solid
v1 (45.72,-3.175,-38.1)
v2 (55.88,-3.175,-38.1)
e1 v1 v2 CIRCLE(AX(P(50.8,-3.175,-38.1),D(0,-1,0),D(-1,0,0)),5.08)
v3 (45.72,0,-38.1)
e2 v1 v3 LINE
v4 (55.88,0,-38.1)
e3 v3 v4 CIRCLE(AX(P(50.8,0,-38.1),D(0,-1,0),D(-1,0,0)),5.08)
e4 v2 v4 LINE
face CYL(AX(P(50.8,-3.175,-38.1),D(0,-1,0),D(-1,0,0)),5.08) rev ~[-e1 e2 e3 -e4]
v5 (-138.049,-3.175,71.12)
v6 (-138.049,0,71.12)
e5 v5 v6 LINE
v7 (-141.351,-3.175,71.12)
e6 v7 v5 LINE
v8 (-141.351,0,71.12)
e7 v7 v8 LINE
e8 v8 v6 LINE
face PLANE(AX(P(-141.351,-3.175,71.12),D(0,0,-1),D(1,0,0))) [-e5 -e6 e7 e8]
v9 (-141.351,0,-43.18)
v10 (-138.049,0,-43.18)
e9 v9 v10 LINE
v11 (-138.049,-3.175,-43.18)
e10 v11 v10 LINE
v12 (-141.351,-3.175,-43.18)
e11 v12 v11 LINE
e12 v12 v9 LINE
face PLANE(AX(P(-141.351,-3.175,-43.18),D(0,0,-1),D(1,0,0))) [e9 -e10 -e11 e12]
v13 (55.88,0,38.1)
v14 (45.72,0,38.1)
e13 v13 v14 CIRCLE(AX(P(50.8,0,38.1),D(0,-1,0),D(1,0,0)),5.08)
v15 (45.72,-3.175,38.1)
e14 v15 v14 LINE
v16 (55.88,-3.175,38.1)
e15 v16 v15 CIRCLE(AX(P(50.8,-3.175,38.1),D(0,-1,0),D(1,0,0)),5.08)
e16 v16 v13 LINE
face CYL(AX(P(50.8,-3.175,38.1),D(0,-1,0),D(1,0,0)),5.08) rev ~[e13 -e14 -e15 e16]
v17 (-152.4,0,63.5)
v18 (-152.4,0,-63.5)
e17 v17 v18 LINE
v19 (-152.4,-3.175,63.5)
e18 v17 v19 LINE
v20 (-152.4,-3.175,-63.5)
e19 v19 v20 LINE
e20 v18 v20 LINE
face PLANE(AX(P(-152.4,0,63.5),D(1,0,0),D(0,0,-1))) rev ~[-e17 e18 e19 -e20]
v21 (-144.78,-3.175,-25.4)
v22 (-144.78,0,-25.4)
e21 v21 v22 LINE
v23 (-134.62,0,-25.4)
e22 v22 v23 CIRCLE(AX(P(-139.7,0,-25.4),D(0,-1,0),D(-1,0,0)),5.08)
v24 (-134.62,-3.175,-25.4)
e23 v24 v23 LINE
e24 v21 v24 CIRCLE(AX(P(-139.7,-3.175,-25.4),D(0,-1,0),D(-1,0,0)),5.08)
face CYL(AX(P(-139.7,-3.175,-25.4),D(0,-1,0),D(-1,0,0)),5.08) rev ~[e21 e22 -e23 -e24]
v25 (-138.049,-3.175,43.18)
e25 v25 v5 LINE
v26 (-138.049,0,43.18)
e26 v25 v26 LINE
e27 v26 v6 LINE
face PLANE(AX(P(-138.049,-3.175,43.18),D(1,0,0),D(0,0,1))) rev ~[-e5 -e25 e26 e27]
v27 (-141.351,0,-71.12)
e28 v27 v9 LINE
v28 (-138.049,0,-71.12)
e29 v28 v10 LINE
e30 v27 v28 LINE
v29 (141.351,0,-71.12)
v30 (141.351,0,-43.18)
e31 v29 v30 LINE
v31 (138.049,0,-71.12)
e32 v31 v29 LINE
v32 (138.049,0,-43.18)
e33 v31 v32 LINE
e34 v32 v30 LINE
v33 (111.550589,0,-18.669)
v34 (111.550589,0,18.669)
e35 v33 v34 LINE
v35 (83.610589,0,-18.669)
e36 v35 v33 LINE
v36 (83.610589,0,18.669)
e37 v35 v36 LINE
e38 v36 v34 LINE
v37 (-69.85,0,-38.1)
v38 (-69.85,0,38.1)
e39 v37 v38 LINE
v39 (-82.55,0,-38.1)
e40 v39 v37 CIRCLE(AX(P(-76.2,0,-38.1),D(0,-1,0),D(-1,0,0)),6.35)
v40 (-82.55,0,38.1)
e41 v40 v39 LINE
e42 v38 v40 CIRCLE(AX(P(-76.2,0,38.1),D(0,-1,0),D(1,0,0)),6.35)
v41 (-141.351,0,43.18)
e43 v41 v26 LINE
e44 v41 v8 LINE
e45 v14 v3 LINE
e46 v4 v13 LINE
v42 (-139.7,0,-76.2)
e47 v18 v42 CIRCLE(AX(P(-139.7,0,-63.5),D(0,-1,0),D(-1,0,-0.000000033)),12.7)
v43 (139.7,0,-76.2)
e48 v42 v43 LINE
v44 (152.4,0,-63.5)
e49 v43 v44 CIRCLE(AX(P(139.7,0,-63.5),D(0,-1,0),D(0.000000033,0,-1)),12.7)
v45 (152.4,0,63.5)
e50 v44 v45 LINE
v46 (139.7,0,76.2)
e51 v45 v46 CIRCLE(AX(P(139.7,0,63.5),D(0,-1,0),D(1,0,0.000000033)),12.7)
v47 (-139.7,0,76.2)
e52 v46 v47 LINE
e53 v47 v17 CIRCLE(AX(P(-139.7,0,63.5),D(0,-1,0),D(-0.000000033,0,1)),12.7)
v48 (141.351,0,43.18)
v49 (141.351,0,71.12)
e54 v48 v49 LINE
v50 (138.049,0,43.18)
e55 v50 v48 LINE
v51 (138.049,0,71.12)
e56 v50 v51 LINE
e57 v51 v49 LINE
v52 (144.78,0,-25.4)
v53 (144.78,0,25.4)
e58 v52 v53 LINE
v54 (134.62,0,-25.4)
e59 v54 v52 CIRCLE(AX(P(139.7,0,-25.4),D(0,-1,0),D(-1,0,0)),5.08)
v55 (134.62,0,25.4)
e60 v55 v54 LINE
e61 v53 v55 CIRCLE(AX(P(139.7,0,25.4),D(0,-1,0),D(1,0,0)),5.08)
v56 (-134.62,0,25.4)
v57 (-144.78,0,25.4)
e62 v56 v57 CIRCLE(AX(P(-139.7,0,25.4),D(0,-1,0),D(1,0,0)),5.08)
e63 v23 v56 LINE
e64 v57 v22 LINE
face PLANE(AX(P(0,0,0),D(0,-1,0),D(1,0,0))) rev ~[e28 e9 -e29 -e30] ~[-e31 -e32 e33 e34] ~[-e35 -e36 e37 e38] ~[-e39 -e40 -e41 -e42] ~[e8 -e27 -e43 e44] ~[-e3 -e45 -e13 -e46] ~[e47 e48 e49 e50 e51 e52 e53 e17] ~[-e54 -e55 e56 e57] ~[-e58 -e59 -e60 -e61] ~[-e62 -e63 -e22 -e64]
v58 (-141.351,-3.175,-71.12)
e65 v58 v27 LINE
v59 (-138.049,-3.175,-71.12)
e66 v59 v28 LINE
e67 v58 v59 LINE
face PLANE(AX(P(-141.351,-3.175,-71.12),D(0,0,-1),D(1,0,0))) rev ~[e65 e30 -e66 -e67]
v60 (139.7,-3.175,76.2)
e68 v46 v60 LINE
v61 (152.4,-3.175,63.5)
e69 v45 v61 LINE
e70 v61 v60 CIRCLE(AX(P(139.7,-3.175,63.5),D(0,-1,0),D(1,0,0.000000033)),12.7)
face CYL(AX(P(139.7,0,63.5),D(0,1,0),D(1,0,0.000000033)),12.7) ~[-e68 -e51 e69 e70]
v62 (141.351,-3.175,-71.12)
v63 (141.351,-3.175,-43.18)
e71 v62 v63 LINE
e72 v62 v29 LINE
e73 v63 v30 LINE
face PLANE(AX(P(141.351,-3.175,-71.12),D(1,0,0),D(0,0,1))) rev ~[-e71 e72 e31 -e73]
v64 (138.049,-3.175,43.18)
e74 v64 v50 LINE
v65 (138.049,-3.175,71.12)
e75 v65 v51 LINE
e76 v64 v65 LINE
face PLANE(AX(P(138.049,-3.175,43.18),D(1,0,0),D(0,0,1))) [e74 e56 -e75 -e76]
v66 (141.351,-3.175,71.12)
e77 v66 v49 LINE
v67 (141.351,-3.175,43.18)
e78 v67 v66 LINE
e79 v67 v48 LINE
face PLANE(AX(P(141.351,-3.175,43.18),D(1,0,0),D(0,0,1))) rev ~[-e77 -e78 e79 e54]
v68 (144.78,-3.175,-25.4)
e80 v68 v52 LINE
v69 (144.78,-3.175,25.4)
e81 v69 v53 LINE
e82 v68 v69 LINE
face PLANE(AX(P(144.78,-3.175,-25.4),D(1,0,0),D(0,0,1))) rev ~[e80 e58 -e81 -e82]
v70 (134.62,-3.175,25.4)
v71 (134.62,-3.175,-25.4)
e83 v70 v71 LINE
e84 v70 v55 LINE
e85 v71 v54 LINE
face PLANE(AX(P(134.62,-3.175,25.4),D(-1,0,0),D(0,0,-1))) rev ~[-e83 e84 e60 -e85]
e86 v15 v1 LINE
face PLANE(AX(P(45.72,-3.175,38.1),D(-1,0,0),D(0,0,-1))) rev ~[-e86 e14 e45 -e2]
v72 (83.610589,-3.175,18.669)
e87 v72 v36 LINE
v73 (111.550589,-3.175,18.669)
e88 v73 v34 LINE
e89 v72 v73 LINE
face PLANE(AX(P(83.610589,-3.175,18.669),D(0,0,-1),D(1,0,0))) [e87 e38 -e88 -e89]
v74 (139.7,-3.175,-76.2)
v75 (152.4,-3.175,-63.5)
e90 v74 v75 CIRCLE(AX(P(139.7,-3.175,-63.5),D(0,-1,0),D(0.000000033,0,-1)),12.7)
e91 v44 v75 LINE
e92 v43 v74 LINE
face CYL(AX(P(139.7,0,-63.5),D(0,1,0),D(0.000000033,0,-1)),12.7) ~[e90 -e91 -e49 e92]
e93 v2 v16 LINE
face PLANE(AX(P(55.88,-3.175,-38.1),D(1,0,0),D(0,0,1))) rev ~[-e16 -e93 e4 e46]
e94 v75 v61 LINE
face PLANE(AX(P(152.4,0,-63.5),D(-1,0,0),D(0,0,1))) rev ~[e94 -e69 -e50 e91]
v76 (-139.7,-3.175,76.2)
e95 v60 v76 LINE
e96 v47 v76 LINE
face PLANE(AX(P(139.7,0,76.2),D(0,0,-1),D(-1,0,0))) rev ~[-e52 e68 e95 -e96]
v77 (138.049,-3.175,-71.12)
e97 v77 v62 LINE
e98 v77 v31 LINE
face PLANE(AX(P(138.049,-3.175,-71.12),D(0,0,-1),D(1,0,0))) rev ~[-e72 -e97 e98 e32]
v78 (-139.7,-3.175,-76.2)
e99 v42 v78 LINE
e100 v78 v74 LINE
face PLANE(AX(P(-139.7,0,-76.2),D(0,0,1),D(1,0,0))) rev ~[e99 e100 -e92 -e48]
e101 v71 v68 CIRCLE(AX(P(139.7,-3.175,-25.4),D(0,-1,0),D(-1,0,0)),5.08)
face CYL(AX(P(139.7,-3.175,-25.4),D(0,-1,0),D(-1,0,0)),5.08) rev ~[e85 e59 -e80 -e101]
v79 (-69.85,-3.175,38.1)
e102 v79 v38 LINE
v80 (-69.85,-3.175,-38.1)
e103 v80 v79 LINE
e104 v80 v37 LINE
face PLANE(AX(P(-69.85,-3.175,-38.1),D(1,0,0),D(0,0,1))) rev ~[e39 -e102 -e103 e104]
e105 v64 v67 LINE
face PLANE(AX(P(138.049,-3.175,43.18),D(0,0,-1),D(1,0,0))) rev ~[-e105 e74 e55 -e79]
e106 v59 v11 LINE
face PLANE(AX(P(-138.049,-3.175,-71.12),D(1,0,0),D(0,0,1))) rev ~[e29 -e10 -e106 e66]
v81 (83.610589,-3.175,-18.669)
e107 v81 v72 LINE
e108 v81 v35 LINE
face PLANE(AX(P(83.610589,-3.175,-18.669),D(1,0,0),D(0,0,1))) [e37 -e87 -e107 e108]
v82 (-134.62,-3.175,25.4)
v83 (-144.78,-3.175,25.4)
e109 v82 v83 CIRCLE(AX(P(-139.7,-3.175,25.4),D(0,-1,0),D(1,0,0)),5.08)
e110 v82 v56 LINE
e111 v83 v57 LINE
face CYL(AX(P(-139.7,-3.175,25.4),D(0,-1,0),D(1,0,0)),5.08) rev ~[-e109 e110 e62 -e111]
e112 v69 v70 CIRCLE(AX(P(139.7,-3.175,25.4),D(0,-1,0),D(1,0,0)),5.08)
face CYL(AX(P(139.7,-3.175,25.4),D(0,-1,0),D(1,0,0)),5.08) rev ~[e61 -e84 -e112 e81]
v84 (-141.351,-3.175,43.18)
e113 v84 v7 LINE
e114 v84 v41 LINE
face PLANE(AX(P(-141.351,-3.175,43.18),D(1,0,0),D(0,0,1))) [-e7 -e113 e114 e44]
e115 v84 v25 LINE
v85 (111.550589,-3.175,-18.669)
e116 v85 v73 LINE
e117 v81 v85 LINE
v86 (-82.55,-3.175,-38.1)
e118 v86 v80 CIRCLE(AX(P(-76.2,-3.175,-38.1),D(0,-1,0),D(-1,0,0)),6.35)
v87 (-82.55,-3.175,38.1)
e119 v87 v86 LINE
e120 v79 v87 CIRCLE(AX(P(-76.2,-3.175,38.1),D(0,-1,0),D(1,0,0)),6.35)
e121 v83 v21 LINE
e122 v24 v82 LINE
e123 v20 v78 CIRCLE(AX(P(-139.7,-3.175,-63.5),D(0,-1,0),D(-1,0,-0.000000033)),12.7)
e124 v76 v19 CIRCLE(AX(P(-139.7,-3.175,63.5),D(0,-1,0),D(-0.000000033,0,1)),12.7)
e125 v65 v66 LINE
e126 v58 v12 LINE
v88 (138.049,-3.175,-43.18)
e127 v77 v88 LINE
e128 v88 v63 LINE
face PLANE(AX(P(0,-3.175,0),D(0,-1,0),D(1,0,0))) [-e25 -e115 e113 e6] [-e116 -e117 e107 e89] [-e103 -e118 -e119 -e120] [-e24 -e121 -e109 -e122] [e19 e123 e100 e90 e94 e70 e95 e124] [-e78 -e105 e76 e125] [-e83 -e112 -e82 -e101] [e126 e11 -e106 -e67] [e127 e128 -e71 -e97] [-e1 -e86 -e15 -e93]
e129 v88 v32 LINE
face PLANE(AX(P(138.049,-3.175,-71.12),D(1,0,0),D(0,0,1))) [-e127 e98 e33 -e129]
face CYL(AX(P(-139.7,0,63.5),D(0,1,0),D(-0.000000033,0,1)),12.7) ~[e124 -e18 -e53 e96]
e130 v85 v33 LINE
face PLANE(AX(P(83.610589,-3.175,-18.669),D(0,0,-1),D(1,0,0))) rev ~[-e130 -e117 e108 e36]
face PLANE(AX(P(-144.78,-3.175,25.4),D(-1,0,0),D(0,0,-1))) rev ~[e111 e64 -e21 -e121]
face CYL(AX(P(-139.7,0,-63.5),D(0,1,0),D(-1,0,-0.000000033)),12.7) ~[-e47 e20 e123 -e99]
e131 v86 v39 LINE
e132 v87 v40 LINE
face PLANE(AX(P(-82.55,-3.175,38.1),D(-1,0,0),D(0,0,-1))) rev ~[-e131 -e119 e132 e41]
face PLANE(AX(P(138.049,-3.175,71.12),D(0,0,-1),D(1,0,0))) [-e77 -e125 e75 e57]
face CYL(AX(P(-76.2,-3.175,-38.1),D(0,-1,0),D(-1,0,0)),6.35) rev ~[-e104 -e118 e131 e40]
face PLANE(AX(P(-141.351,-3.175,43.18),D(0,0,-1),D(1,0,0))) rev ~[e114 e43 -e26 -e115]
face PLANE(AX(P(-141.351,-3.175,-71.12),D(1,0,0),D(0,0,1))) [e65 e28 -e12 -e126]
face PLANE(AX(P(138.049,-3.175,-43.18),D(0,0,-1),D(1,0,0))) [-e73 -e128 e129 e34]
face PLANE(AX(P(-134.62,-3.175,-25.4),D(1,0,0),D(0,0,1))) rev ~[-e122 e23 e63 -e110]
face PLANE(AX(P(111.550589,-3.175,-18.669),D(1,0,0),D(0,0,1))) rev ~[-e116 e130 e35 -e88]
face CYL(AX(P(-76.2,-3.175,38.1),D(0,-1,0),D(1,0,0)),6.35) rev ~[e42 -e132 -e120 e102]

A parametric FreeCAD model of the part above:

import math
import FreeCAD as App
import Part
import Sketcher

V = App.Vector
Q = App.Units.Quantity

doc = App.newDocument("Part")
body = doc.addObject("PartDesign::Body", "Body")

# Sketch on XZ plane
sketch1 = body.newObject("Sketcher::SketchObject", "Sketch")
sketch1.AttachmentSupport = (doc.getObject("XZ_Plane"), [""])
sketch1.MapMode = "FlatFace"
sketch1.addGeometry([
    Part.ArcOfCircle(Part.Circle(V(140, 63, 0), V(0, 0, 1), 13), math.radians(0), math.radians(90)),  # 0
    Part.LineSegment(V(140, 76, 0), V(-140, 76, 0)),  # 1
    Part.ArcOfCircle(Part.Circle(V(-140, 63, 0), V(0, 0, 1), 13), math.radians(90), math.radians(180)),  # 2
    Part.LineSegment(V(-152, 64, 0), V(-152, -64, 0)),  # 3
    Part.ArcOfCircle(Part.Circle(V(-140, -63, 0), V(0, 0, 1), 13), math.radians(-180), math.radians(-90)),  # 4
    Part.LineSegment(V(-140, -76, 0), V(140, -76, 0)),  # 5
    Part.ArcOfCircle(Part.Circle(V(140, -63, 0), V(0, 0, 1), 13), math.radians(-90), math.radians(0)),  # 6
    Part.LineSegment(V(152, -64, 0), V(152, 64, 0)),  # 7
], False)
sketch1.addConstraint([
    Sketcher.Constraint("Tangent", 0, 2, 1, 1),
    Sketcher.Constraint("Tangent", 1, 2, 2, 1),
    Sketcher.Constraint("Tangent", 2, 2, 3, 1),
    Sketcher.Constraint("Tangent", 3, 2, 4, 1),
    Sketcher.Constraint("Tangent", 4, 2, 5, 1),
    Sketcher.Constraint("Tangent", 5, 2, 6, 1),
    Sketcher.Constraint("Tangent", 6, 2, 7, 1),
    Sketcher.Constraint("Tangent", 7, 2, 0, 1),
    Sketcher.Constraint("Horizontal", 1),
    Sketcher.Constraint("Vertical", 3),
    Sketcher.Constraint("Horizontal", 5),
    Sketcher.Constraint("Vertical", 7),
    Sketcher.Constraint("Equal", 0, 2),
    Sketcher.Constraint("Equal", 2, 4),
    Sketcher.Constraint("Equal", 4, 6),
    Sketcher.Constraint("Symmetric", 0, 3, 4, 3, -1, 1),
    Sketcher.Constraint("Radius", 0, Q("0.5 in")),
    Sketcher.Constraint("DistanceX", 1, 2, 1, 1, Q("11 in")),
    Sketcher.Constraint("DistanceY", 3, 2, 3, 1, Q("5 in")),
])
pad1 = body.newObject("PartDesign::Pad", "Pad")
pad1.Profile = sketch1
pad1.Length = Q("0.125 in")

# Sketch on XZ plane
sketch2 = body.newObject("Sketcher::SketchObject", "Sketch001")
sketch2.AttachmentSupport = (doc.getObject("XZ_Plane"), [""])
sketch2.MapMode = "FlatFace"
sketch2.AttachmentOffset = App.Placement(V(0, 0, 0.125 * 25.4), App.Rotation())
sketch2.addGeometry([
    Part.ArcOfCircle(Part.Circle(V(-139.7, -25.4, 0), V(0, 0, 1), 5.1), math.radians(180), math.radians(360)),  # 0
    Part.LineSegment(V(-134.6, -25.4, 0), V(-134.6, 25.4, 0)),  # 1
    Part.ArcOfCircle(Part.Circle(V(-139.7, 25.4, 0), V(0, 0, 1), 5.1), math.radians(0), math.radians(180)),  # 2
    Part.LineSegment(V(-144.8, 25.4, 0), V(-144.8, -25.4, 0)),  # 3
    Part.ArcOfCircle(Part.Circle(V(50.8, 38.1, 0), V(0, 0, 1), 5.1), math.radians(0), math.radians(180)),  # 4
    Part.LineSegment(V(45.7, 38.1, 0), V(45.7, -38.1, 0)),  # 5
    Part.ArcOfCircle(Part.Circle(V(50.8, -38.1, 0), V(0, 0, 1), 5.1), math.radians(180), math.radians(360)),  # 6
    Part.LineSegment(V(55.9, -38.1, 0), V(55.9, 38.1, 0)),  # 7
    Part.LineSegment(V(83.6, 18.7, 0), V(83.6, -18.7, 0)),  # 8
    Part.LineSegment(V(83.6, -18.7, 0), V(111.6, -18.7, 0)),  # 9
    Part.LineSegment(V(111.6, -18.7, 0), V(111.6, 18.7, 0)),  # 10
    Part.LineSegment(V(111.6, 18.7, 0), V(83.6, 18.7, 0)),  # 11
    Part.LineSegment(V(-141.4, 71.1, 0), V(-141.4, 43.2, 0)),  # 12
    Part.LineSegment(V(-141.4, 43.2, 0), V(-138, 43.2, 0)),  # 13
    Part.LineSegment(V(-138, 43.2, 0), V(-138, 71.1, 0)),  # 14
    Part.LineSegment(V(-138, 71.1, 0), V(-141.4, 71.1, 0)),  # 15
    Part.LineSegment(V(-141.4, -43.2, 0), V(-141.4, -71.1, 0)),  # 16
    Part.LineSegment(V(-141.4, -71.1, 0), V(-138, -71.1, 0)),  # 17
    Part.LineSegment(V(-138, -71.1, 0), V(-138, -43.2, 0)),  # 18
    Part.LineSegment(V(-138, -43.2, 0), V(-141.4, -43.2, 0)),  # 19
    Part.LineSegment(V(138, 71.1, 0), V(138, 43.2, 0)),  # 20
    Part.LineSegment(V(138, 43.2, 0), V(141.4, 43.2, 0)),  # 21
    Part.LineSegment(V(141.4, 43.2, 0), V(141.4, 71.1, 0)),  # 22
    Part.LineSegment(V(141.4, 71.1, 0), V(138, 71.1, 0)),  # 23
    Part.LineSegment(V(138, -43.2, 0), V(138, -71.1, 0)),  # 24
    Part.LineSegment(V(138, -71.1, 0), V(141.4, -71.1, 0)),  # 25
    Part.LineSegment(V(141.4, -71.1, 0), V(141.4, -43.2, 0)),  # 26
    Part.LineSegment(V(141.4, -43.2, 0), V(138, -43.2, 0)),  # 27
    Part.LineSegment(V(134.6, 25.4, 0), V(134.6, -25.4, 0)),  # 28
    Part.ArcOfCircle(Part.Circle(V(139.7, -25.4, 0), V(0, 0, 1), 5.1), math.radians(180), math.radians(360)),  # 29
    Part.LineSegment(V(144.8, -25.4, 0), V(144.8, 25.4, 0)),  # 30
    Part.ArcOfCircle(Part.Circle(V(139.7, 25.4, 0), V(0, 0, 1), 5.1), math.radians(0), math.radians(180)),  # 31
    Part.ArcOfCircle(Part.Circle(V(-76.2, 38.1, 0), V(0, 0, 1), 6.3), math.radians(0), math.radians(180)),  # 32
    Part.LineSegment(V(-82.5, 38.1, 0), V(-82.5, -38.1, 0)),  # 33
    Part.ArcOfCircle(Part.Circle(V(-76.2, -38.1, 0), V(0, 0, 1), 6.3), math.radians(180), math.radians(360)),  # 34
    Part.LineSegment(V(-69.8, -38.1, 0), V(-69.8, 38.1, 0)),  # 35
], False)
sketch2.addConstraint([
    Sketcher.Constraint("Tangent", 0, 2, 1, 1),
    Sketcher.Constraint("Tangent", 1, 2, 2, 1),
    Sketcher.Constraint("Tangent", 2, 2, 3, 1),
    Sketcher.Constraint("Tangent", 3, 2, 0, 1),
    Sketcher.Constraint("Tangent", 4, 2, 5, 1),
    Sketcher.Constraint("Tangent", 5, 2, 6, 1),
    Sketcher.Constraint("Tangent", 6, 2, 7, 1),
    Sketcher.Constraint("Tangent", 7, 2, 4, 1),
    Sketcher.Constraint("Coincident", 8, 2, 9, 1),
    Sketcher.Constraint("Coincident", 9, 2, 10, 1),
    Sketcher.Constraint("Coincident", 10, 2, 11, 1),
    Sketcher.Constraint("Coincident", 11, 2, 8, 1),
    Sketcher.Constraint("Coincident", 12, 2, 13, 1),
    Sketcher.Constraint("Coincident", 13, 2, 14, 1),
    Sketcher.Constraint("Coincident", 14, 2, 15, 1),
    Sketcher.Constraint("Coincident", 15, 2, 12, 1),
    Sketcher.Constraint("Coincident", 16, 2, 17, 1),
    Sketcher.Constraint("Coincident", 17, 2, 18, 1),
    Sketcher.Constraint("Coincident", 18, 2, 19, 1),
    Sketcher.Constraint("Coincident", 19, 2, 16, 1),
    Sketcher.Constraint("Coincident", 20, 2, 21, 1),
    Sketcher.Constraint("Coincident", 21, 2, 22, 1),
    Sketcher.Constraint("Coincident", 22, 2, 23, 1),
    Sketcher.Constraint("Coincident", 23, 2, 20, 1),
    Sketcher.Constraint("Coincident", 24, 2, 25, 1),
    Sketcher.Constraint("Coincident", 25, 2, 26, 1),
    Sketcher.Constraint("Coincident", 26, 2, 27, 1),
    Sketcher.Constraint("Coincident", 27, 2, 24, 1),
    Sketcher.Constraint("Tangent", 28, 2, 29, 1),
    Sketcher.Constraint("Tangent", 29, 2, 30, 1),
    Sketcher.Constraint("Tangent", 30, 2, 31, 1),
    Sketcher.Constraint("Tangent", 31, 2, 28, 1),
    Sketcher.Constraint("Tangent", 32, 2, 33, 1),
    Sketcher.Constraint("Tangent", 33, 2, 34, 1),
    Sketcher.Constraint("Tangent", 34, 2, 35, 1),
    Sketcher.Constraint("Tangent", 35, 2, 32, 1),
    Sketcher.Constraint("Vertical", 1),
    Sketcher.Constraint("Vertical", 3),
    Sketcher.Constraint("Vertical", 5),
    Sketcher.Constraint("Vertical", 7),
    Sketcher.Constraint("Vertical", 8),
    Sketcher.Constraint("Horizontal", 9),
    Sketcher.Constraint("Vertical", 10),
    Sketcher.Constraint("Horizontal", 11),
    Sketcher.Constraint("Vertical", 12),
    Sketcher.Constraint("Horizontal", 13),
    Sketcher.Constraint("Vertical", 14),
    Sketcher.Constraint("Horizontal", 15),
    Sketcher.Constraint("Vertical", 16),
    Sketcher.Constraint("Horizontal", 17),
    Sketcher.Constraint("Vertical", 18),
    Sketcher.Constraint("Horizontal", 19),
    Sketcher.Constraint("Vertical", 20),
    Sketcher.Constraint("Horizontal", 21),
    Sketcher.Constraint("Vertical", 22),
    Sketcher.Constraint("Horizontal", 23),
    Sketcher.Constraint("Vertical", 24),
    Sketcher.Constraint("Horizontal", 25),
    Sketcher.Constraint("Vertical", 26),
    Sketcher.Constraint("Horizontal", 27),
    Sketcher.Constraint("Vertical", 28),
    Sketcher.Constraint("Vertical", 30),
    Sketcher.Constraint("Vertical", 33),
    Sketcher.Constraint("Vertical", 35),
    Sketcher.Constraint("Equal", 2, 4),
    Sketcher.Constraint("Equal", 6, 29),
    Sketcher.Constraint("Symmetric", 2, 3, 29, 3, -1, 1),
    Sketcher.Constraint("Symmetric", 18, 2, 20, 2, -1, 1),
    Sketcher.Constraint("Symmetric", 16, 2, 22, 2, -1, 1),
    Sketcher.Constraint("Symmetric", 14, 2, 24, 2, -1, 1),
    Sketcher.Constraint("Symmetric", 12, 2, 26, 2, -1, 1),
    Sketcher.Constraint("Symmetric", 13, 2, 20, 2, -2),
    Sketcher.Constraint("Symmetric", 15, 2, 22, 2, -2),
    Sketcher.Constraint("Horizontal", 0, 3, 29, 3),
    Sketcher.Constraint("Horizontal", 2, 3, 31, 3),
    Sketcher.Constraint("Horizontal", 4, 3, 32, 3),
    Sketcher.Constraint("Horizontal", 6, 3, 34, 3),
    Sketcher.Constraint("Equal", 11, 12),
    Sketcher.Constraint("Radius", 0, Q("0.2 in")),
    Sketcher.Constraint("DistanceY", 1, 1, 1, 2, Q("2 in")),
    Sketcher.Constraint("DistanceY", 5, 2, 5, 1, Q("3 in")),
    Sketcher.Constraint("Radius", 32, Q("0.25 in")),
    Sketcher.Constraint("DistanceX", 9, 1, 9, 2, Q("1.1 in")),
    Sketcher.Constraint("DistanceX", -1, 1, 4, 3, Q("2 in")),
    Sketcher.Constraint("DistanceX", 32, 3, -1, 1, Q("3 in")),
    Sketcher.Constraint("DistanceX", 0, 3, 29, 3, Q("11 in")),
    Sketcher.Constraint("DistanceX", 13, 1, 13, 2, Q("0.13 in")),
    Sketcher.Constraint("DistanceY", 8, 2, 8, 1, Q("1.47 in")),
    Sketcher.Constraint("DistanceY", -1, 1, 4, 3, Q("1.5 in")),
    Sketcher.Constraint("DistanceY", -1, 1, 12, 2, Q("1.7 in")),
    Sketcher.Constraint("DistanceY", 8, 2, -1, 1, Q("0.735 in")),
    Sketcher.Constraint("DistanceX", 12, 2, -1, 1, Q("5.565 in")),
    Sketcher.Constraint("DistanceX", -1, 1, 8, 2, Q("83.610589 mm")),
])
pocket1 = body.newObject("PartDesign::Pocket", "Pocket")
pocket1.Profile = sketch2
pocket1.Length = Q("1 in")
body2 = doc.addObject("PartDesign::Body", "Body001")
doc.recompute()

body2.BaseFeature = body
doc.recompute()
body.Visibility = False

doc.recompute()
